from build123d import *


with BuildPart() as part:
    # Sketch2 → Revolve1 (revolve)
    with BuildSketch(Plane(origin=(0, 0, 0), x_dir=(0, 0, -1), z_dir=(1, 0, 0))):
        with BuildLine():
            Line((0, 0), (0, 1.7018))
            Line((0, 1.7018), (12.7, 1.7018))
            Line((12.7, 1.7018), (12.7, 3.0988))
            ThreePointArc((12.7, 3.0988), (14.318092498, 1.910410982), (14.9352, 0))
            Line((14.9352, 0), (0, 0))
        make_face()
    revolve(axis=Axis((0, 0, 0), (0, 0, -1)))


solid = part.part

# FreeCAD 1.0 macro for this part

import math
import FreeCAD as App
import Part
import Sketcher

V = App.Vector
Q = App.Units.Quantity

doc = App.newDocument("Part")
body = doc.addObject("PartDesign::Body", "Body")

# Sketch on YZ plane
sketch1 = doc.addObject("Sketcher::SketchObject", "Sketch")
body.addObject(sketch1)
sketch1.AttachmentSupport = (doc.YZ_Plane, [""])
sketch1.MapMode = "FlatFace"
sketch1.addGeometry(Part.LineSegment(V(1.7, 0, 0), V(0, 0, 0)), False)
sketch1.addGeometry(Part.LineSegment(V(0, 0, 0), V(0, -14.9, 0)), False)
sketch1.addGeometry(Part.ArcOfCircle(Part.Circle(V(0, -11.7, 0), V(0, 0, 1), 3.3), math.radians(-90), math.radians(-18)), False)
sketch1.addGeometry(Part.LineSegment(V(3.1, -12.7, 0), V(1.7, -12.7, 0)), False)
sketch1.addGeometry(Part.LineSegment(V(1.7, -12.7, 0), V(1.7, 0, 0)), False)
sketch1.addConstraint(Sketcher.Constraint("Coincident", 0, 2, 1, 1))
sketch1.addConstraint(Sketcher.Constraint("Coincident", 1, 2, 2, 1))
sketch1.addConstraint(Sketcher.Constraint("Coincident", 2, 2, 3, 1))
sketch1.addConstraint(Sketcher.Constraint("Coincident", 3, 2, 4, 1))
sketch1.addConstraint(Sketcher.Constraint("Coincident", 4, 2, 0, 1))
sketch1.addConstraint(Sketcher.Constraint("Horizontal", 0))
sketch1.addConstraint(Sketcher.Constraint("Vertical", 1))
sketch1.addConstraint(Sketcher.Constraint("Horizontal", 3))
sketch1.addConstraint(Sketcher.Constraint("Vertical", 4))
sketch1.addConstraint(Sketcher.Constraint("Coincident", 0, 2, -1, 1))
sketch1.addConstraint(Sketcher.Constraint("PointOnObject", 2, 3, -2))
sketch1.addConstraint(Sketcher.Constraint("DistanceY", 4, 1, 4, 2, Q("0.5 in")))
sketch1.addConstraint(Sketcher.Constraint("DistanceX", 0, 2, 0, 1, Q("0.067 in")))
sketch1.addConstraint(Sketcher.Constraint("DistanceX", 3, 2, 3, 1, Q("0.055 in")))
sketch1.addConstraint(Sketcher.Constraint("DistanceY", 1, 2, 1, 1, Q("0.588 in")))
revolution = doc.addObject("PartDesign::Revolution", "Revolution")
body.addObject(revolution)
revolution.Profile = sketch1
revolution.ReferenceAxis = (sketch1, ["V_Axis"])
revolution.Angle = 360

doc.recompute()
